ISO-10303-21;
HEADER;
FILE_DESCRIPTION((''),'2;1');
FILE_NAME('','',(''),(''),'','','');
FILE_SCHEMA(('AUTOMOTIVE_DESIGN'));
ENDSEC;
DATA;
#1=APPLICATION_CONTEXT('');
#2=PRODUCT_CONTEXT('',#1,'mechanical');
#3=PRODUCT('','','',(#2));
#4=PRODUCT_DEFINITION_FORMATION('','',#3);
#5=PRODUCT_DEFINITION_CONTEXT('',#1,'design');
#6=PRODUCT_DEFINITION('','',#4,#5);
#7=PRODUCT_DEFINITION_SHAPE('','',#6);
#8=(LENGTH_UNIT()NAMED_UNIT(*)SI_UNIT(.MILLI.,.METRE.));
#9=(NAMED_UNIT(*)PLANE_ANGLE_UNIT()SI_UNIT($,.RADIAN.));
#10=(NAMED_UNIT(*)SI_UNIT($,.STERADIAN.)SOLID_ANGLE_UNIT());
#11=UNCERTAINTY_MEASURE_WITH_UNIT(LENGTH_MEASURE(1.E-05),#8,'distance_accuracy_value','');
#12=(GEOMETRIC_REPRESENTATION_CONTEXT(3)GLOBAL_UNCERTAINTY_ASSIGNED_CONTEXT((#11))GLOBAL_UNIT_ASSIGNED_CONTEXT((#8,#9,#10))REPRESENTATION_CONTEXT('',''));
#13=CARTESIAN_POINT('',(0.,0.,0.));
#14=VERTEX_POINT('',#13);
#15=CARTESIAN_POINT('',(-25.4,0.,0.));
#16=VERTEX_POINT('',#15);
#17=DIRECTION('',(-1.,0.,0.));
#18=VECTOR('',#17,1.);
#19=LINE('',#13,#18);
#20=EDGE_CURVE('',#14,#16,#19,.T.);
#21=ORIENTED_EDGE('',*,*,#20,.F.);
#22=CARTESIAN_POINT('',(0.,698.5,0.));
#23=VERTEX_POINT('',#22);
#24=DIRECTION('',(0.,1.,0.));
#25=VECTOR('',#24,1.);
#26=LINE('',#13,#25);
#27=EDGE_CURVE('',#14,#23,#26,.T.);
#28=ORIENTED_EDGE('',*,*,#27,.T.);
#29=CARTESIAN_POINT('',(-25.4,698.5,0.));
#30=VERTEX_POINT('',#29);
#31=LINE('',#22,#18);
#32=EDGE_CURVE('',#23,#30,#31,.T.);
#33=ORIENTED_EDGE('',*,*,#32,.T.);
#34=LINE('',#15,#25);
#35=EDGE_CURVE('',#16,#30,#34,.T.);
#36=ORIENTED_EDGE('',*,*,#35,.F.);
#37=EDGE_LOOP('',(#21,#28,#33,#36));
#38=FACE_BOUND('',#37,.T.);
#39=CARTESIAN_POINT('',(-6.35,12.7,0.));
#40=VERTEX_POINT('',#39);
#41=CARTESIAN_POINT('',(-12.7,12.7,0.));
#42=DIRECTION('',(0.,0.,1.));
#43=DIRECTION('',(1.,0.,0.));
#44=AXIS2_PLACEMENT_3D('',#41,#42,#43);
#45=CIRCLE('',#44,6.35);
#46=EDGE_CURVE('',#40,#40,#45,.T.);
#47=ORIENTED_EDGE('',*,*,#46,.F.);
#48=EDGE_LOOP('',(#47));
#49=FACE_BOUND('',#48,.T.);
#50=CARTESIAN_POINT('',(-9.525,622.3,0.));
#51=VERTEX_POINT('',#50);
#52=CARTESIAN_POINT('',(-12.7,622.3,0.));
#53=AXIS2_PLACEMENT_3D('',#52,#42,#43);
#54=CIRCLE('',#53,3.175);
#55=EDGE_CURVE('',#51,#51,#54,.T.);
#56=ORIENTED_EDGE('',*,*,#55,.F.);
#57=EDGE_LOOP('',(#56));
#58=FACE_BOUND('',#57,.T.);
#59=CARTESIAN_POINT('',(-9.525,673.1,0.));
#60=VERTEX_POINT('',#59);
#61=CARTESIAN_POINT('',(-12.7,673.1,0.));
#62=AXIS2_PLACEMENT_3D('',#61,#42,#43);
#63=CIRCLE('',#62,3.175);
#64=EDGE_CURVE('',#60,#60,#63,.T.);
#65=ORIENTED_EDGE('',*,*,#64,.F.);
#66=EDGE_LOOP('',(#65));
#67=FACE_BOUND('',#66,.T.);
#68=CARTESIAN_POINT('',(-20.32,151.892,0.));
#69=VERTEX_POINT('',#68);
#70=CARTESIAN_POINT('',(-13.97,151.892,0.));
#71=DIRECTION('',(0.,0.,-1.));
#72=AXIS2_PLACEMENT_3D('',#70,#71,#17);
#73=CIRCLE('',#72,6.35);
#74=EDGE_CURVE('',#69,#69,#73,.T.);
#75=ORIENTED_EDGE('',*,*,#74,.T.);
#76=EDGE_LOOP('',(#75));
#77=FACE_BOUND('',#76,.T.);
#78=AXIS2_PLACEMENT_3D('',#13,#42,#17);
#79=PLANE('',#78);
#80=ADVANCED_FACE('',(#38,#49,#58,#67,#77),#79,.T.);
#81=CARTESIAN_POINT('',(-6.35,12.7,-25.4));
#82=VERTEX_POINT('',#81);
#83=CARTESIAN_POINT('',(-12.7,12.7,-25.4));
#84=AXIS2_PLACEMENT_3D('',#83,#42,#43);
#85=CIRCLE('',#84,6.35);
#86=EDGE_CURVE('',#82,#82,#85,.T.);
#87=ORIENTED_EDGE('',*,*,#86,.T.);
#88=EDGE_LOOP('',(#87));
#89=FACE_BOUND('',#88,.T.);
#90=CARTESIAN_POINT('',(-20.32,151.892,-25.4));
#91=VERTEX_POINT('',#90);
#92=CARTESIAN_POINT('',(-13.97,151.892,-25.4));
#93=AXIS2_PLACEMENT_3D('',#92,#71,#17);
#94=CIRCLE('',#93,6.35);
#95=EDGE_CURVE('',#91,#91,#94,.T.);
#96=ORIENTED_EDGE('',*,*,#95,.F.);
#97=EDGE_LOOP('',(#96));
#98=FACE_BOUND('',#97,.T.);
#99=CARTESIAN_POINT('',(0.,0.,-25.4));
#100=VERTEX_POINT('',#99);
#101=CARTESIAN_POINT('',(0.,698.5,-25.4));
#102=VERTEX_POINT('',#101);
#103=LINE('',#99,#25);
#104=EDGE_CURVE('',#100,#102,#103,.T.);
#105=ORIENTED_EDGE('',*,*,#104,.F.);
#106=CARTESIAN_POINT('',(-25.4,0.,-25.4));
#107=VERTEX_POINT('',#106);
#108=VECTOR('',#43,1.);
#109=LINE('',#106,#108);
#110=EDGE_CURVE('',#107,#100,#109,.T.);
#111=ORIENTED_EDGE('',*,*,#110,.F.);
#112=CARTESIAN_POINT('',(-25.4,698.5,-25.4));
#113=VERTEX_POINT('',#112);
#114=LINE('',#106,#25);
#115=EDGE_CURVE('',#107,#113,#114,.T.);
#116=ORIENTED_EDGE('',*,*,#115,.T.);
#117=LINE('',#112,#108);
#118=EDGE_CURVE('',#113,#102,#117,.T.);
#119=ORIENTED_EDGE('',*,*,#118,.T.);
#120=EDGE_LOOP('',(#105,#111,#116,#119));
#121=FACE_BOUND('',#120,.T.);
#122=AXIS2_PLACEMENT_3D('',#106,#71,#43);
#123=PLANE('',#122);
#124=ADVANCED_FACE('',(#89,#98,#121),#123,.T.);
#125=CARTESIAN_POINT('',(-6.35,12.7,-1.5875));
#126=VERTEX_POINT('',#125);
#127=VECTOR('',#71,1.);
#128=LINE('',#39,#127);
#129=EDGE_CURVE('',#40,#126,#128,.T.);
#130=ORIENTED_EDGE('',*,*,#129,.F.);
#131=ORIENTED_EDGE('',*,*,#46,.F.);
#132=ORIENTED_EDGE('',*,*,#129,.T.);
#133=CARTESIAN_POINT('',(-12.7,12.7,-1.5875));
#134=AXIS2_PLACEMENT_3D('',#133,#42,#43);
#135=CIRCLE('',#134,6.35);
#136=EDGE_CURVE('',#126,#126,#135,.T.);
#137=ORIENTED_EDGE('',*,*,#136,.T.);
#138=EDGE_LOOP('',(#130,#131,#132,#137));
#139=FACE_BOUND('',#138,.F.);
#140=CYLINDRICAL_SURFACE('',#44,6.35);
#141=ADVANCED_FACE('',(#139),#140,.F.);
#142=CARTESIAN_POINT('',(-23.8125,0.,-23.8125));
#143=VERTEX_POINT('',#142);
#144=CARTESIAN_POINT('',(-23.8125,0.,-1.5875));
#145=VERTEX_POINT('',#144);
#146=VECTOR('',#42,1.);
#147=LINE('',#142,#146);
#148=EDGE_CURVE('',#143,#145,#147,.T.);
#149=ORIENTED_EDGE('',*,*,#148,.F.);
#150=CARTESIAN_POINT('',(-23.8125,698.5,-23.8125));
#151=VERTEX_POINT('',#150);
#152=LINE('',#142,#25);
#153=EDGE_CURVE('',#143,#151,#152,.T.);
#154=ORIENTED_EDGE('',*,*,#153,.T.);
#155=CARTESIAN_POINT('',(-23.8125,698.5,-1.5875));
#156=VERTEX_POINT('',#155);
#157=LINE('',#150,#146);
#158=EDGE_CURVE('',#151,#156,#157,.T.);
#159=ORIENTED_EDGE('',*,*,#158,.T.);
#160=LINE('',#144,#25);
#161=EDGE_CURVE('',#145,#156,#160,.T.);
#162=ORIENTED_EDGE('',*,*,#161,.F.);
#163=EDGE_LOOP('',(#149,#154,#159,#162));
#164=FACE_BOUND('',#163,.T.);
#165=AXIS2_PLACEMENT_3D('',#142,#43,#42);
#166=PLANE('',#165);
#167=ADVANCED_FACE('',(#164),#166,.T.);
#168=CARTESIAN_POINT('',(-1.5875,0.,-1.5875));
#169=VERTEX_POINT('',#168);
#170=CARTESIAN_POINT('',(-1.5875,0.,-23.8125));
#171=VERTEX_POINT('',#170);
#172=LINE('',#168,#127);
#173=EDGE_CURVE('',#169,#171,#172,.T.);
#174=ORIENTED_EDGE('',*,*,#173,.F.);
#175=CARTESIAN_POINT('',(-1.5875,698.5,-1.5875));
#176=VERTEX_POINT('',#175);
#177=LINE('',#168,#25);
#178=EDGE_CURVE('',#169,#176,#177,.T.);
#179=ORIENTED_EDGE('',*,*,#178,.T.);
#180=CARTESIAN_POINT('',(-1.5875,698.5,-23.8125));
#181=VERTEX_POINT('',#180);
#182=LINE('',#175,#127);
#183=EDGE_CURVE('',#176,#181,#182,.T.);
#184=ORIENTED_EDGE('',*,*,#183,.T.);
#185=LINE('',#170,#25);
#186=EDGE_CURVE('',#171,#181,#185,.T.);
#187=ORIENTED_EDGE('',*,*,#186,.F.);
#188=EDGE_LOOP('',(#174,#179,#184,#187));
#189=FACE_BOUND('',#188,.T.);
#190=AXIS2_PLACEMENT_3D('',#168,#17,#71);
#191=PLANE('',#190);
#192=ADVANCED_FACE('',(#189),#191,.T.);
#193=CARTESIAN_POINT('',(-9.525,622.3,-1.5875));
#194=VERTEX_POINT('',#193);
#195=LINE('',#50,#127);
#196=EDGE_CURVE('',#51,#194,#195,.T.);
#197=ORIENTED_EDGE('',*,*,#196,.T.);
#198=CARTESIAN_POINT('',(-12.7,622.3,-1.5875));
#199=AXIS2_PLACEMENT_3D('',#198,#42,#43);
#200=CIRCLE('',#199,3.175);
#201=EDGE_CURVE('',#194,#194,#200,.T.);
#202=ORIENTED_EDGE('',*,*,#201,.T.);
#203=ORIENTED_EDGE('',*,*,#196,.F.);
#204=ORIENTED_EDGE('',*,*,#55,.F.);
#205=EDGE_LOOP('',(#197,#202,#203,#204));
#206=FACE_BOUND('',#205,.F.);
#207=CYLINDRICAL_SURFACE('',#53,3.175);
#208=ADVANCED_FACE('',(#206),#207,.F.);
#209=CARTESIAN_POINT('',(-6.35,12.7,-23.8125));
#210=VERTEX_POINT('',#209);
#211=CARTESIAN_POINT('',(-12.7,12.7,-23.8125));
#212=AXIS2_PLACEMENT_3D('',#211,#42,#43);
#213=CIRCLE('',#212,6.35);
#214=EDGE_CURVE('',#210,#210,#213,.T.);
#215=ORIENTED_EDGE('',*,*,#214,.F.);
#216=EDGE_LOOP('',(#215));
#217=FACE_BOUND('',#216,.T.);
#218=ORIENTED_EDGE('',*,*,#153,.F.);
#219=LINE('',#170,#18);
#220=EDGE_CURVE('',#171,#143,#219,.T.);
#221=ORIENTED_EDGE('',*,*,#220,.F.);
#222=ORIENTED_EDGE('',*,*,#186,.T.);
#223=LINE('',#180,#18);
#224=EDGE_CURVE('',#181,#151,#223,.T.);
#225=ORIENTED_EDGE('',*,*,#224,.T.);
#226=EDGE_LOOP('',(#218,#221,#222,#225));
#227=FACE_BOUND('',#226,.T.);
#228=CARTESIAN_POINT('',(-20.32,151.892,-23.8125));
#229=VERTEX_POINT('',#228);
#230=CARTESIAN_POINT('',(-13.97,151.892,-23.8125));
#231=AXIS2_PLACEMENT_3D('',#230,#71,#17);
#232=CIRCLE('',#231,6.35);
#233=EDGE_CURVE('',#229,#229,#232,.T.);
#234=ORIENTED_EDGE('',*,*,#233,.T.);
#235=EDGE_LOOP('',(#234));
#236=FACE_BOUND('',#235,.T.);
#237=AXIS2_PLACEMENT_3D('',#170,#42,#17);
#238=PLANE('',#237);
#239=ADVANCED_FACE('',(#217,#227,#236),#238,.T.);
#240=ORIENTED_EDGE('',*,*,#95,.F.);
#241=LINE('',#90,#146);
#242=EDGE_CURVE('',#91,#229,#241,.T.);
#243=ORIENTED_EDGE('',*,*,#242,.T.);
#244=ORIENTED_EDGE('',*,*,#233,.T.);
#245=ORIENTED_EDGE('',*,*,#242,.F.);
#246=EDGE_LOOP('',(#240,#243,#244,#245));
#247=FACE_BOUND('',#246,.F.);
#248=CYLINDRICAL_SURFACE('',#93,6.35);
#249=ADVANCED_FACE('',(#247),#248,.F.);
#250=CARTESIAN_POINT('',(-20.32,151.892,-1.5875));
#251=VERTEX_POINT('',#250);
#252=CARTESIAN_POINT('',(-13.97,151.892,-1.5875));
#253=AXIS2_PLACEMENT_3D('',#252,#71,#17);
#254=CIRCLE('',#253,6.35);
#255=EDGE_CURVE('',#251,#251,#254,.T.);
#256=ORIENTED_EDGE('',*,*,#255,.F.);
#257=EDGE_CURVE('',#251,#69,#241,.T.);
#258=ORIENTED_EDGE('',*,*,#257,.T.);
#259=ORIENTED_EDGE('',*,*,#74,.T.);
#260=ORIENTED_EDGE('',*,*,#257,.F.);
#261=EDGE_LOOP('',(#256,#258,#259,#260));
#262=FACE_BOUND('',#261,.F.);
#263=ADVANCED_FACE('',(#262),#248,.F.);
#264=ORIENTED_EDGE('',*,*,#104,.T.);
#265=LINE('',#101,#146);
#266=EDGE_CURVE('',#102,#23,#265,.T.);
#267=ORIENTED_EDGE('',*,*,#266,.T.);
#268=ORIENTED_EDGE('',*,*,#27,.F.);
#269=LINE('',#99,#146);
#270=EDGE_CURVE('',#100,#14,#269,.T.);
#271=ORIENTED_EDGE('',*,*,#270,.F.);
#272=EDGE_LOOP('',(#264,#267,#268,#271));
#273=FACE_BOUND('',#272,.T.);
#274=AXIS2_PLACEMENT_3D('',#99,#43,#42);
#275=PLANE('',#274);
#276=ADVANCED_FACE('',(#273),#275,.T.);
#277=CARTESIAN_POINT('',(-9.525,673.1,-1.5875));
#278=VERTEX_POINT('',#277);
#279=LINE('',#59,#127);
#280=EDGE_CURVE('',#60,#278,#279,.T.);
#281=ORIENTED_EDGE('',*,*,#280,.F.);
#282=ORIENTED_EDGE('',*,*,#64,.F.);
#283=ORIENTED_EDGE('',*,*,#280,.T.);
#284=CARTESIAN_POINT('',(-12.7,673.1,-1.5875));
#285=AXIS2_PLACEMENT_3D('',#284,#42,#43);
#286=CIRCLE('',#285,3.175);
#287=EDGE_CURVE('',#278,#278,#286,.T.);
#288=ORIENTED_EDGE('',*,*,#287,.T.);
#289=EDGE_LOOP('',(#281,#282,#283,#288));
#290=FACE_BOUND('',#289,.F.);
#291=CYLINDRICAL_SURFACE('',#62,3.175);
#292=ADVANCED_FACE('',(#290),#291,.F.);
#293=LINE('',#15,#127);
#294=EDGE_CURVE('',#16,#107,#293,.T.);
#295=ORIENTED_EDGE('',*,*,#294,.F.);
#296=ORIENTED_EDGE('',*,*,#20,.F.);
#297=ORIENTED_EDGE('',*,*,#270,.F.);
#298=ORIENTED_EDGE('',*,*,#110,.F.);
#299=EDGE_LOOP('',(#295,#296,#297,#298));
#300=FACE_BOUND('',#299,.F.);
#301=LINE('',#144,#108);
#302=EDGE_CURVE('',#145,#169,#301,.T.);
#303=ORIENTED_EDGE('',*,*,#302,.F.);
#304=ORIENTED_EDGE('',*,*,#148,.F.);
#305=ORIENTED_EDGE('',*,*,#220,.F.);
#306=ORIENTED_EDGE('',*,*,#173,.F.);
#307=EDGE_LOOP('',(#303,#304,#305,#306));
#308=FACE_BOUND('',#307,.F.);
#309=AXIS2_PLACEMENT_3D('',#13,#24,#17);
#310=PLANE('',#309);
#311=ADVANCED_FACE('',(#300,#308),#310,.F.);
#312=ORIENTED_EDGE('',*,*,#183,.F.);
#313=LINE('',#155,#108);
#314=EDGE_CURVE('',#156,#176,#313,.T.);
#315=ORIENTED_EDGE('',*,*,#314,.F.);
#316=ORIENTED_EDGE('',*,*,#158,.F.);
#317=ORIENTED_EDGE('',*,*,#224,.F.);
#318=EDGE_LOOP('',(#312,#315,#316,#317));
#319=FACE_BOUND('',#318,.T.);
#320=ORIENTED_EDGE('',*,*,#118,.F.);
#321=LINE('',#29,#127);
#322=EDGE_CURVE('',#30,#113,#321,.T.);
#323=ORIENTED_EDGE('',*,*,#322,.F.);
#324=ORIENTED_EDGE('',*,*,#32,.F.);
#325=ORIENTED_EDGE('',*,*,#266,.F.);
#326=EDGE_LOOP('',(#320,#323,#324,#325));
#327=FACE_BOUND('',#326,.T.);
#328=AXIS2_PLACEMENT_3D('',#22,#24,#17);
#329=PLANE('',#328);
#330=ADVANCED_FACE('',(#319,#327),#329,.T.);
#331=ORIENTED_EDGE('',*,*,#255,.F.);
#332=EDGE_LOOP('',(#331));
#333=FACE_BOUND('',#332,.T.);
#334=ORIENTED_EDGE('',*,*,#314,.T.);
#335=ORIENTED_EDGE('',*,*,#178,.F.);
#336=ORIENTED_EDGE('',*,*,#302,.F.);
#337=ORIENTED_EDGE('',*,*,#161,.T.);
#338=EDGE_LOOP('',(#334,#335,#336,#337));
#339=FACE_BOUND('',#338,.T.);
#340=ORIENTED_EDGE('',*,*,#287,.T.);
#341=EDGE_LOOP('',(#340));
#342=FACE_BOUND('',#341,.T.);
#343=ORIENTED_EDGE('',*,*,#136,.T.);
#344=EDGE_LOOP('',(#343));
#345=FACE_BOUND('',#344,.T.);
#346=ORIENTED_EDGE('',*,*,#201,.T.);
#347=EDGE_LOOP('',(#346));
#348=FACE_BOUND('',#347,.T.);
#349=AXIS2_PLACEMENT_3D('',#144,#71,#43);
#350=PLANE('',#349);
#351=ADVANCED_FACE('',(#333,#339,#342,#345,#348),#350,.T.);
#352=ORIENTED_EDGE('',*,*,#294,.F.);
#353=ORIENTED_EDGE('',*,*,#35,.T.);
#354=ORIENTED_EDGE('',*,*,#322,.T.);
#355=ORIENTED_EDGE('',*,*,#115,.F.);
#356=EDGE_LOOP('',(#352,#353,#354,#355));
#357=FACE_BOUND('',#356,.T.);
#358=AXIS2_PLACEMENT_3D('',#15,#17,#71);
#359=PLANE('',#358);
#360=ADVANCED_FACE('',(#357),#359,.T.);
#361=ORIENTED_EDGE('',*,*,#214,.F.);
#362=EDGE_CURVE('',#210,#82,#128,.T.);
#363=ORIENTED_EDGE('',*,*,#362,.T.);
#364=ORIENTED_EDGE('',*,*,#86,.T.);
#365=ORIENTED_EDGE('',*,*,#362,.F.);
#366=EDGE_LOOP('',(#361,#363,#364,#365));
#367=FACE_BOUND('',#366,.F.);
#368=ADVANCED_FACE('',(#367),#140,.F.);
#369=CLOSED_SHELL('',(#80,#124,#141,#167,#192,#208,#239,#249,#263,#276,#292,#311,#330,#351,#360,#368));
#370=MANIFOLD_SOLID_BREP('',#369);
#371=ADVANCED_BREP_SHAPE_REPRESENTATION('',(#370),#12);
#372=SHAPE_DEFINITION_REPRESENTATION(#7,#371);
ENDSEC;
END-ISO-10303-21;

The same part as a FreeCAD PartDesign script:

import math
import FreeCAD as App
import Part
import Sketcher

V = App.Vector
Q = App.Units.Quantity

doc = App.newDocument("Part")
params = doc.addObject("Spreadsheet::Sheet", "Params")
for row, (alias, value) in enumerate([
    ("sketch1_width", "1 in"),
    ("pad1_length", "27.5 in"),
    ("sketch2_diameter", "0.5 in"),
    ("pocket1_length", "1 in"),
    ("sketch3_diameter", "0.5 in"),
    ("pocket2_length", "1 in"),
    ("pocket3_length", "1 in"),
    ("sketch5_diameter", "0.25 in"),
    ("pocket4_length", "0.0625 in"),
], start=1):
    params.set(f"A{row}", alias)
    params.set(f"B{row}", "=" + value)
    params.setAlias(f"B{row}", alias)

body = doc.addObject("PartDesign::Body", "Body")

# Sketch on XZ plane
sketch1 = body.newObject("Sketcher::SketchObject", "Sketch")
sketch1.AttachmentSupport = (doc.getObject("XZ_Plane"), [""])
sketch1.MapMode = "FlatFace"
sketch1.addGeometry(Part.LineSegment(V(-25, 0, 0), V(0, 0, 0)), False)
sketch1.addGeometry(Part.LineSegment(V(0, 0, 0), V(0, -25, 0)), False)
sketch1.addGeometry(Part.LineSegment(V(0, -25, 0), V(-25, -25, 0)), False)
sketch1.addGeometry(Part.LineSegment(V(-25, -25, 0), V(-25, 0, 0)), False)
sketch1.addGeometry(Part.LineSegment(V(-24, -2, 0), V(-24, -24, 0)), False)
sketch1.addGeometry(Part.LineSegment(V(-24, -24, 0), V(-2, -24, 0)), False)
sketch1.addGeometry(Part.LineSegment(V(-2, -24, 0), V(-2, -2, 0)), False)
sketch1.addGeometry(Part.LineSegment(V(-2, -2, 0), V(-24, -2, 0)), False)
sketch1.addConstraint(Sketcher.Constraint("Coincident", 0, 2, 1, 1))
sketch1.addConstraint(Sketcher.Constraint("Coincident", 1, 2, 2, 1))
sketch1.addConstraint(Sketcher.Constraint("Coincident", 2, 2, 3, 1))
sketch1.addConstraint(Sketcher.Constraint("Coincident", 3, 2, 0, 1))
sketch1.addConstraint(Sketcher.Constraint("Coincident", 4, 2, 5, 1))
sketch1.addConstraint(Sketcher.Constraint("Coincident", 5, 2, 6, 1))
sketch1.addConstraint(Sketcher.Constraint("Coincident", 6, 2, 7, 1))
sketch1.addConstraint(Sketcher.Constraint("Coincident", 7, 2, 4, 1))
sketch1.addConstraint(Sketcher.Constraint("Horizontal", 0))
sketch1.addConstraint(Sketcher.Constraint("Vertical", 1))
sketch1.addConstraint(Sketcher.Constraint("Horizontal", 2))
sketch1.addConstraint(Sketcher.Constraint("Vertical", 3))
sketch1.addConstraint(Sketcher.Constraint("Vertical", 4))
sketch1.addConstraint(Sketcher.Constraint("Horizontal", 5))
sketch1.addConstraint(Sketcher.Constraint("Vertical", 6))
sketch1.addConstraint(Sketcher.Constraint("Horizontal", 7))
sketch1.addConstraint(Sketcher.Constraint("Coincident", 0, 2, -1, 1))
sketch1.addConstraint(Sketcher.Constraint("Equal", 2, 1))
sketch1.addConstraint(Sketcher.Constraint("Equal", 7, 4))
sketch1.addConstraint(Sketcher.Constraint("DistanceX", 0, 1, 0, 2, Q("1 in")))
sketch1.addConstraint(Sketcher.Constraint("DistanceX", 5, 2, -1, 1, Q("0.0625 in")))
sketch1.addConstraint(Sketcher.Constraint("DistanceY", 6, 2, -1, 1, Q("0.0625 in")))
sketch1.addConstraint(Sketcher.Constraint("DistanceX", 2, 2, 4, 2, Q("0.0625 in")))
sketch1.setExpression("Constraints[19]", "Params.sketch1_width")
pad1 = body.newObject("PartDesign::Pad", "Pad")
pad1.Profile = sketch1
pad1.setExpression("Length", "Params.pad1_length")
pad1.Reversed = True

# Sketch on XY plane
sketch2 = body.newObject("Sketcher::SketchObject", "Sketch001")
sketch2.AttachmentSupport = (doc.getObject("XY_Plane"), [""])
sketch2.MapMode = "FlatFace"
sketch2.addGeometry(Part.Circle(V(-13, 13, 0), V(0, 0, 1), 6), False)
sketch2.addConstraint(Sketcher.Constraint("Diameter", 0, Q("0.5 in")))
sketch2.addConstraint(Sketcher.Constraint("DistanceX", 0, 3, -1, 1, Q("0.5 in")))
sketch2.addConstraint(Sketcher.Constraint("DistanceY", -1, 1, 0, 3, Q("0.5 in")))
sketch2.setExpression("Constraints[0]", "Params.sketch2_diameter")
pocket1 = body.newObject("PartDesign::Pocket", "Pocket")
pocket1.Profile = sketch2
pocket1.setExpression("Length", "Params.pocket1_length")

# Sketch on XY plane
sketch3 = body.newObject("Sketcher::SketchObject", "Sketch002")
sketch3.AttachmentSupport = (doc.getObject("XY_Plane"), [""])
sketch3.MapMode = "FlatFace"
sketch3.AttachmentOffset = App.Placement(V(0, 0, -1 * 25.4), App.Rotation())
sketch3.addGeometry(Part.Circle(V(-14, 152, 0), V(0, 0, 1), 6), False)
sketch3.addConstraint(Sketcher.Constraint("Diameter", 0, Q("0.5 in")))
sketch3.addConstraint(Sketcher.Constraint("DistanceY", -1, 1, 0, 3, Q("5.98 in")))
sketch3.addConstraint(Sketcher.Constraint("DistanceX", 0, 3, -1, 1, Q("0.55 in")))
sketch3.setExpression("Constraints[0]", "Params.sketch3_diameter")
pocket2 = body.newObject("PartDesign::Pocket", "Pocket001")
pocket2.Profile = sketch3
pocket2.setExpression("Length", "Params.pocket2_length")
pocket2.Reversed = True

# Sketch on XY plane
sketch4 = body.newObject("Sketcher::SketchObject", "Sketch003")
sketch4.AttachmentSupport = (doc.getObject("XY_Plane"), [""])
sketch4.MapMode = "FlatFace"
sketch4.AttachmentOffset = App.Placement(V(0, 0, -1 * 25.4), App.Rotation())
sketch4.addGeometry(Part.ArcOfCircle(Part.Circle(V(16.2, 636.5, 0), V(0, 0, 1), 37), math.radians(69), math.radians(116)), False)
sketch4.addGeometry(Part.LineSegment(V(0, 669.7, 0), V(0, 723.9, 0)), False)
sketch4.addGeometry(Part.ArcOfCircle(Part.Circle(V(-3.7, 684.7, 0), V(0, 0, 1), 39.4), math.radians(-21), math.radians(85)), False)
sketch4.addGeometry(Part.LineSegment(V(33.2, 670.9, 0), V(29.7, 670.9, 0)), False)
sketch4.addConstraint(Sketcher.Constraint("Coincident", 0, 2, 1, 1))
sketch4.addConstraint(Sketcher.Constraint("Coincident", 1, 2, 2, 2))
sketch4.addConstraint(Sketcher.Constraint("Coincident", 2, 1, 3, 1))
sketch4.addConstraint(Sketcher.Constraint("Coincident", 3, 2, 0, 1))
sketch4.addConstraint(Sketcher.Constraint("Vertical", 1))
sketch4.addConstraint(Sketcher.Constraint("Horizontal", 3))
sketch4.addConstraint(Sketcher.Constraint("PointOnObject", 0, 2, -2))
sketch4.addConstraint(Sketcher.Constraint("DistanceY", -1, 1, 1, 2, Q("28.5 in")))
sketch4.addConstraint(Sketcher.Constraint("Radius", 0, Q("36.9816 mm")))
sketch4.addConstraint(Sketcher.Constraint("Radius", 2, Q("39.3562 mm")))
sketch4.addConstraint(Sketcher.Constraint("DistanceX", 3, 2, 3, 1, Q("3.4992 mm")))
sketch4.addConstraint(Sketcher.Constraint("DistanceY", 1, 1, 1, 2, Q("54.1864 mm")))
sketch4.addConstraint(Sketcher.Constraint("DistanceX", 2, 3, -1, 1, Q("0.1458 in")))
sketch4.addConstraint(Sketcher.Constraint("DistanceX", -1, 1, 3, 2, Q("1.1676 in")))
pocket3 = body.newObject("PartDesign::Pocket", "Pocket002")
pocket3.Profile = sketch4
pocket3.setExpression("Length", "Params.pocket3_length")
pocket3.Reversed = True

# Sketch on XY plane
sketch5 = body.newObject("Sketcher::SketchObject", "Sketch004")
sketch5.AttachmentSupport = (doc.getObject("XY_Plane"), [""])
sketch5.MapMode = "FlatFace"
sketch5.addGeometry(Part.Circle(V(-12.7, 673.1, 0), V(0, 0, 1), 3.2), False)
sketch5.addGeometry(Part.Circle(V(-12.7, 622.3, 0), V(0, 0, 1), 3.2), False)
sketch5.addConstraint(Sketcher.Constraint("Equal", 0, 1))
sketch5.addConstraint(Sketcher.Constraint("Vertical", 0, 3, 1, 3))
sketch5.addConstraint(Sketcher.Constraint("Diameter", 0, Q("0.25 in")))
sketch5.addConstraint(Sketcher.Constraint("DistanceY", 1, 3, 0, 3, Q("2 in")))
sketch5.addConstraint(Sketcher.Constraint("DistanceX", 0, 3, -1, 1, Q("0.5 in")))
sketch5.addConstraint(Sketcher.Constraint("DistanceY", -1, 1, 0, 3, Q("26.5 in")))
sketch5.setExpression("Constraints[2]", "Params.sketch5_diameter")
pocket4 = body.newObject("PartDesign::Pocket", "Pocket003")
pocket4.Profile = sketch5
pocket4.setExpression("Length", "Params.pocket4_length")

doc.recompute()
